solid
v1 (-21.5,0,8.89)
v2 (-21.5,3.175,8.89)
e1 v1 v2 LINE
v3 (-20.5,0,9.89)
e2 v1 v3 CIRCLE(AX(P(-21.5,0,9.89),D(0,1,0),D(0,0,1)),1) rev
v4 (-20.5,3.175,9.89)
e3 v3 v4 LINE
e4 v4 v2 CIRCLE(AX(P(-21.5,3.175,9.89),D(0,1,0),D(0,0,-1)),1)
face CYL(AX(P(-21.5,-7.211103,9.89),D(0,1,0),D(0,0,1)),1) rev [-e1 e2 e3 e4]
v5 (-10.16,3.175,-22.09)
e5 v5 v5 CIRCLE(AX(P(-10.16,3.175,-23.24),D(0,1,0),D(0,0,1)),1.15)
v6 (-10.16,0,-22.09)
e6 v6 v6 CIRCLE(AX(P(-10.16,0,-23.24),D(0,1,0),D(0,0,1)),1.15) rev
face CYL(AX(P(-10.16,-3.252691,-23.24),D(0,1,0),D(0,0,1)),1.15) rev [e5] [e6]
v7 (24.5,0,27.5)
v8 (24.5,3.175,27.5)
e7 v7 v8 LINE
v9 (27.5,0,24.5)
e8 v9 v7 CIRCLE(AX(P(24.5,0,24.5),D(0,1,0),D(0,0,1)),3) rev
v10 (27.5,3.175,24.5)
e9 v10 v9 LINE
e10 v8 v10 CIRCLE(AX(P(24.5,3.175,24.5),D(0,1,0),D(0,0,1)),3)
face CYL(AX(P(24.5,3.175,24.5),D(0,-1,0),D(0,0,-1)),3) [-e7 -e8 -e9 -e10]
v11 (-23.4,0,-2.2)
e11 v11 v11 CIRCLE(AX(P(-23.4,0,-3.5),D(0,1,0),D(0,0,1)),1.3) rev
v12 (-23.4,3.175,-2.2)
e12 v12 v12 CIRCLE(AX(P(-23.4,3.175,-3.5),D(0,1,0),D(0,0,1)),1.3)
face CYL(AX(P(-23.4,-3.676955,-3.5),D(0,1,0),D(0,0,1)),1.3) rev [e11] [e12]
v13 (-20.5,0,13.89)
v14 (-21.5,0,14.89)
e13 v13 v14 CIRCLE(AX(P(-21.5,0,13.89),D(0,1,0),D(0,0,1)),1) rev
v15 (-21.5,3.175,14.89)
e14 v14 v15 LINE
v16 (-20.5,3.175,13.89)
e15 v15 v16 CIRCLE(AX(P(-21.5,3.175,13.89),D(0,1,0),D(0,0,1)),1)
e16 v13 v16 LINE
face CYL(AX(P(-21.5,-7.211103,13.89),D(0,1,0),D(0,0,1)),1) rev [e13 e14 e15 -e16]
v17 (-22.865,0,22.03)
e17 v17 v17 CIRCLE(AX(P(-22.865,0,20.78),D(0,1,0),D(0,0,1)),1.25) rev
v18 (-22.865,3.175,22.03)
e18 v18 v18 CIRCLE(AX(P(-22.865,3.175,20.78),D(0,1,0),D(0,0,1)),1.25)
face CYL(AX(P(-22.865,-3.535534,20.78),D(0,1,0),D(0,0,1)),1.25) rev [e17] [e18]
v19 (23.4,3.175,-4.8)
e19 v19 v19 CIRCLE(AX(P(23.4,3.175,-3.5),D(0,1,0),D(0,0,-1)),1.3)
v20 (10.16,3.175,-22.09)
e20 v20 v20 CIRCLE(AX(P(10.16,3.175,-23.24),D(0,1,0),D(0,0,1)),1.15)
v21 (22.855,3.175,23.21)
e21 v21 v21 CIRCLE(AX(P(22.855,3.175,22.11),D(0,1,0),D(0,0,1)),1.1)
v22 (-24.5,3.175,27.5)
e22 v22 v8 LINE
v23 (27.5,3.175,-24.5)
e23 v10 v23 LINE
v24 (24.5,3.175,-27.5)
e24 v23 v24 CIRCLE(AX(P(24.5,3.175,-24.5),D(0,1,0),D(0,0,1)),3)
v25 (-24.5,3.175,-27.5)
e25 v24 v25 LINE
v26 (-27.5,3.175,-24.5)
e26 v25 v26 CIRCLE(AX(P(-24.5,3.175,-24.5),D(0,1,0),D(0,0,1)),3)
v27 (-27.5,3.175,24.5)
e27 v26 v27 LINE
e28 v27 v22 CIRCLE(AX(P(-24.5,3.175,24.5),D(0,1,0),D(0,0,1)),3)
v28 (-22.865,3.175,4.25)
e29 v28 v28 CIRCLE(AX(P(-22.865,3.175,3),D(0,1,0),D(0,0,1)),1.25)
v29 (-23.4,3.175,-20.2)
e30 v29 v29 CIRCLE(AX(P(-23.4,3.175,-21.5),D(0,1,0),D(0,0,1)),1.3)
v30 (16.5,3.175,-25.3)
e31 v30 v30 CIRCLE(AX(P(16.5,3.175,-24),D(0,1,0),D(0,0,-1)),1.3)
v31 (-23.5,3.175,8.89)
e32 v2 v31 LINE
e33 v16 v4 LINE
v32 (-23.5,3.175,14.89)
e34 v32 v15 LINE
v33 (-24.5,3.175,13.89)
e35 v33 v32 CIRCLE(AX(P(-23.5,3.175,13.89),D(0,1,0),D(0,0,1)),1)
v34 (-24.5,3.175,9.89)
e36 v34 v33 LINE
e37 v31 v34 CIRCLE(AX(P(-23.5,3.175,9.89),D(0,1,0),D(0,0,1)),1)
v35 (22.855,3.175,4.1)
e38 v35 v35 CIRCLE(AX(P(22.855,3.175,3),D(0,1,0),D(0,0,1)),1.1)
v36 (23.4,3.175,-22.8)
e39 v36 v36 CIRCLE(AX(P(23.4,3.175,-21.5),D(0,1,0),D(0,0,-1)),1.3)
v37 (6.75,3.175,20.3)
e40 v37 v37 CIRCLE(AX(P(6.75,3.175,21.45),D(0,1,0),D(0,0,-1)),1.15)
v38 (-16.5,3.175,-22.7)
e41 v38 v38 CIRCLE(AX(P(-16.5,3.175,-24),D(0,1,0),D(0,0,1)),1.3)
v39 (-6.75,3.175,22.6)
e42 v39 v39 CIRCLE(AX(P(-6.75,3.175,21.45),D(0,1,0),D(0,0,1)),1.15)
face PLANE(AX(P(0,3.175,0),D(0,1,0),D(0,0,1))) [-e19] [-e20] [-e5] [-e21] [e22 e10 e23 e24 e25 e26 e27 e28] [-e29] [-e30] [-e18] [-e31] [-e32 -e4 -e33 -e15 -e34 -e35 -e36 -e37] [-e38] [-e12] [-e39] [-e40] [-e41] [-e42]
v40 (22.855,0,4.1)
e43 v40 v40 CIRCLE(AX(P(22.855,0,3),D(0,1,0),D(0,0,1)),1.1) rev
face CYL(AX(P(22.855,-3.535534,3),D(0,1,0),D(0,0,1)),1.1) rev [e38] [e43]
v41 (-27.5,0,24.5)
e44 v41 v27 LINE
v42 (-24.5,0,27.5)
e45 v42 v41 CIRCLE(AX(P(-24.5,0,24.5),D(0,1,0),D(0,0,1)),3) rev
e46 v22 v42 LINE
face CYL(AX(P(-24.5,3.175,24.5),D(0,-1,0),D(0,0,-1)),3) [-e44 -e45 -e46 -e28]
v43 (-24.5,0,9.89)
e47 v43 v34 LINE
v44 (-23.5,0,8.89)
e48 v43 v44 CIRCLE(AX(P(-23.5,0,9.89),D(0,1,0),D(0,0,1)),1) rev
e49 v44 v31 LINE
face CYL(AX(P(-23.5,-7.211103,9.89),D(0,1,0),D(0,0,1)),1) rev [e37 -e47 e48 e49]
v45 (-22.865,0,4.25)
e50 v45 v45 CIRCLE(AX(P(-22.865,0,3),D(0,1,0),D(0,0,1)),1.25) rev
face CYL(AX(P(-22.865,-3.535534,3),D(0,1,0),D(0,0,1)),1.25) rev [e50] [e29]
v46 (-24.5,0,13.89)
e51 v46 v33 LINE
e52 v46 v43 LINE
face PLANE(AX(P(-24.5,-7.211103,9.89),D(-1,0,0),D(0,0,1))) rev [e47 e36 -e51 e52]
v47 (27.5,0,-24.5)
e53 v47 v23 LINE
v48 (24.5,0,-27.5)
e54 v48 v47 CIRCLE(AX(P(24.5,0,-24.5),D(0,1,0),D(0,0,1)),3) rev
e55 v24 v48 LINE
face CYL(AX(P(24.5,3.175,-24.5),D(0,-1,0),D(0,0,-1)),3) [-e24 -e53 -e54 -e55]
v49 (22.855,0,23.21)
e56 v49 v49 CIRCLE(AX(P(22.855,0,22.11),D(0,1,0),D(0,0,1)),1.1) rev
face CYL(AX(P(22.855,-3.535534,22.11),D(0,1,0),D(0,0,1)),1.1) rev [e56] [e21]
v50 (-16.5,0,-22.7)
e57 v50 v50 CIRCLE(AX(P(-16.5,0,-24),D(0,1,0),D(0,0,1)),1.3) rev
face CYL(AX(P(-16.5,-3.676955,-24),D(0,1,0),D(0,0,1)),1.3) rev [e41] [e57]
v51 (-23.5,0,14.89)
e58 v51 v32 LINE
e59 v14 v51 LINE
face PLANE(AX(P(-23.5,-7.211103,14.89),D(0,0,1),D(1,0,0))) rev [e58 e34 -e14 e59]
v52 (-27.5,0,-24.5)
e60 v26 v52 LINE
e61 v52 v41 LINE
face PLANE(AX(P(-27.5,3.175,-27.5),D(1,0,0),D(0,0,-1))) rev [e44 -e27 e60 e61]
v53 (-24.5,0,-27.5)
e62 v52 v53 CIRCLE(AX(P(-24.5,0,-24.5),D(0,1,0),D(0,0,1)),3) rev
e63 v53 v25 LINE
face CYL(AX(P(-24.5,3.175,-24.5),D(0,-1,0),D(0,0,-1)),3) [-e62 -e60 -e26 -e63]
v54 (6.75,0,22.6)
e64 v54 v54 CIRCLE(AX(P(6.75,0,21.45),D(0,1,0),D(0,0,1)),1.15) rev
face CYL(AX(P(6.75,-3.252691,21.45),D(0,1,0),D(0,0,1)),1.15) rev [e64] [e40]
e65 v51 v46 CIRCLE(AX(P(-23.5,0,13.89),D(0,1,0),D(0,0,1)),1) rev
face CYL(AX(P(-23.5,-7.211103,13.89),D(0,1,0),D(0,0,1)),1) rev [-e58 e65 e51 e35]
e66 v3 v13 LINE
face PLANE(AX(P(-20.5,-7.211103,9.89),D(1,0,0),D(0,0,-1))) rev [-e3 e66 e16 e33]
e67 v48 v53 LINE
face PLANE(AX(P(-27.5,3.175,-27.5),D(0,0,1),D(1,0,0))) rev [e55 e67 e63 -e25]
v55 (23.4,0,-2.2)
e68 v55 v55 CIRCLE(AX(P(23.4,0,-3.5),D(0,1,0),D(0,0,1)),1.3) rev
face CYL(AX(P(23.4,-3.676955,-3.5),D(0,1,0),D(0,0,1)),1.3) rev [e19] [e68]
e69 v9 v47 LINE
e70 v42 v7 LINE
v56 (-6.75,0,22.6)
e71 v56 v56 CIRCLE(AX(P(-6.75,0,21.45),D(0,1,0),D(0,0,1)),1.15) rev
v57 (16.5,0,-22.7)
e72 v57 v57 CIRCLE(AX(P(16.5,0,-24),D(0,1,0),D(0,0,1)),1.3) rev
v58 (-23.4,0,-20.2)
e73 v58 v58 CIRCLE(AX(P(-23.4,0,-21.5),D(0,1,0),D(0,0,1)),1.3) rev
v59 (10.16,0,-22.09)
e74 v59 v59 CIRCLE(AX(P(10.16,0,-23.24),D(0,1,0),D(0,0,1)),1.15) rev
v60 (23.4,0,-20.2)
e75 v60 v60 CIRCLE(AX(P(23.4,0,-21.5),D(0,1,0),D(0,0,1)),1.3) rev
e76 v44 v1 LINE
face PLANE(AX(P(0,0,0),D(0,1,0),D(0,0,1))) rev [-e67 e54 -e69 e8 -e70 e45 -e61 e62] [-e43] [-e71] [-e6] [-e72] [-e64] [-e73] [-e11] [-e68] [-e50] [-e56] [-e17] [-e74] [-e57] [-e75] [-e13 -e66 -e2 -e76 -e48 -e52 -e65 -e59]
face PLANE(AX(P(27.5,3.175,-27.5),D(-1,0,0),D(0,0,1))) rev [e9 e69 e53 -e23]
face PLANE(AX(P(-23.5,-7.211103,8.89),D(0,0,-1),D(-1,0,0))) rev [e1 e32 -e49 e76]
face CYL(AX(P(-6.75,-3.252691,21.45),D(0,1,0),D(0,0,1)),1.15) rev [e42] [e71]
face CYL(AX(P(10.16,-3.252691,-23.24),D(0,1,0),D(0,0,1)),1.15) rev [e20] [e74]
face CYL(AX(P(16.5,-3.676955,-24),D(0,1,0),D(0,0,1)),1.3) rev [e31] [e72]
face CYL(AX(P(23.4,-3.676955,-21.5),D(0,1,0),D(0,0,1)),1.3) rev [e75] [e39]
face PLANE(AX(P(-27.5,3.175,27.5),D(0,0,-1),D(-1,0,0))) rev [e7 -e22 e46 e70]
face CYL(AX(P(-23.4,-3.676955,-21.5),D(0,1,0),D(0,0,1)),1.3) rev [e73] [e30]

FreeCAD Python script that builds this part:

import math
import FreeCAD as App
import Part
import Sketcher


def edges_at(feature, points):
    """Names of the edges that pass closest to the given points."""
    edges = feature.Shape.Edges
    near = lambda p: min(range(len(edges)), key=lambda i: edges[i].distToShape(Part.Vertex(*p))[0])
    return sorted({f"Edge{near(p) + 1}" for p in points})

doc = App.newDocument("Part")
body = doc.addObject("PartDesign::Body", "Body")

sketch1 = body.newObject("Sketcher::SketchObject", "Sketch")
sketch1.AttachmentSupport = (doc.getObject("XZ_Plane"), [""])
sketch1.MapMode = "FlatFace"
sketch1.addGeometry([
    Part.LineSegment(App.Vector(-28, -28, 0), App.Vector(-28, 28, 0)),
    Part.LineSegment(App.Vector(-28, 28, 0), App.Vector(28, 28, 0)),
    Part.LineSegment(App.Vector(28, 28, 0), App.Vector(28, -28, 0)),
    Part.LineSegment(App.Vector(28, -28, 0), App.Vector(-28, -28, 0)),
], False)
sketch1.addConstraint([
    Sketcher.Constraint("Coincident", 0, 2, 1, 1),
    Sketcher.Constraint("Coincident", 1, 2, 2, 1),
    Sketcher.Constraint("Coincident", 2, 2, 3, 1),
    Sketcher.Constraint("Coincident", 3, 2, 0, 1),
    Sketcher.Constraint("Vertical", 0),
    Sketcher.Constraint("Horizontal", 1),
    Sketcher.Constraint("Vertical", 2),
    Sketcher.Constraint("Horizontal", 3),
    Sketcher.Constraint("Symmetric", 0, 2, 2, 2, -1, 1),
    Sketcher.Constraint("Equal", 3, 0),
    Sketcher.Constraint("DistanceX", 1, 1, 1, 2, 55.0),
])
pad1 = body.newObject("PartDesign::Pad", "Pad")
pad1.Profile = sketch1
pad1.Length = 3.175
pad1.Reversed = True

sketch2 = body.newObject("Sketcher::SketchObject", "Sketch001")
sketch2.AttachmentSupport = (doc.getObject("XZ_Plane"), [""])
sketch2.MapMode = "FlatFace"
sketch2.AttachmentOffset = App.Placement(App.Vector(0, 0, -3.175), App.Rotation())
sketch2.addGeometry([
    Part.Circle(App.Vector(-23.4, -21.5, 0), App.Vector(0, 0, 1), 1.3),
    Part.Circle(App.Vector(-23.4, -3.5, 0), App.Vector(0, 0, 1), 1.3),
    Part.Circle(App.Vector(23.4, -3.5, 0), App.Vector(0, 0, 1), 1.3),
    Part.Circle(App.Vector(23.4, -21.5, 0), App.Vector(0, 0, 1), 1.3),
], False)
sketch2.addConstraint([
    Sketcher.Constraint("Equal", 0, 1),
    Sketcher.Constraint("Equal", 1, 2),
    Sketcher.Constraint("Equal", 2, 3),
    Sketcher.Constraint("Symmetric", 1, 3, 2, 3, -2),
    Sketcher.Constraint("Symmetric", 0, 3, 3, 3, -2),
    Sketcher.Constraint("Vertical", 0, 3, 1, 3),
    Sketcher.Constraint("Diameter", 0, 2.6),
    Sketcher.Constraint("DistanceY", 0, 3, 1, 3, 18.0),
    Sketcher.Constraint("DistanceX", 0, 3, -1, 1, 23.4),
    Sketcher.Constraint("DistanceY", 0, 3, -1, 1, 21.5),
])
pocket1 = body.newObject("PartDesign::Pocket", "Pocket")
pocket1.Profile = sketch2
pocket1.Length = 3.175
pocket1.Reversed = True
doc.recompute()

fillet = body.newObject("PartDesign::Fillet", "Fillet")
fillet.Base = (pocket1, edges_at(pocket1, [
    (27.5, 1.587, 27.5),
    (-27.5, 1.587, 27.5),
    (-27.5, 1.587, -27.5),
    (27.5, 1.587, -27.5),
]))
fillet.Radius = 3

sketch3 = body.newObject("Sketcher::SketchObject", "Sketch002")
sketch3.AttachmentSupport = (doc.getObject("XZ_Plane"), [""])
sketch3.MapMode = "FlatFace"
sketch3.AttachmentOffset = App.Placement(App.Vector(0, 0, -3.175), App.Rotation())
sketch3.addGeometry([
    Part.Circle(App.Vector(-22.9, 3, 0), App.Vector(0, 0, 1), 1.2),
    Part.Circle(App.Vector(22.9, 3, 0), App.Vector(0, 0, 1), 1.1),
    Part.Circle(App.Vector(22.9, 22.1, 0), App.Vector(0, 0, 1), 1.1),
    Part.Circle(App.Vector(-22.9, 20.8, 0), App.Vector(0, 0, 1), 1.2),
], False)
sketch3.addConstraint([
    Sketcher.Constraint("Equal", 1, 2),
    Sketcher.Constraint("Equal", 0, 3),
    Sketcher.Constraint("Horizontal", 0, 3, 1, 3),
    Sketcher.Constraint("Vertical", 1, 3, 2, 3),
    Sketcher.Constraint("Vertical", 0, 3, 3, 3),
    Sketcher.Constraint("Diameter", 0, 2.5),
    Sketcher.Constraint("Diameter", 1, 2.2),
    Sketcher.Constraint("DistanceY", -1, 1, 0, 3, 3.0),
    Sketcher.Constraint("DistanceY", -1, 1, 2, 3, 22.11),
    Sketcher.Constraint("DistanceY", -1, 1, 3, 3, 20.78),
    Sketcher.Constraint("DistanceX", 0, 3, 1, 3, 45.72),
    Sketcher.Constraint("DistanceX", 0, 3, -1, 1, 22.865),
])
pocket2 = body.newObject("PartDesign::Pocket", "Pocket001")
pocket2.Profile = sketch3
pocket2.Length = 3.175
pocket2.Reversed = True

sketch4 = body.newObject("Sketcher::SketchObject", "Sketch003")
sketch4.AttachmentSupport = (doc.getObject("XZ_Plane"), [""])
sketch4.MapMode = "FlatFace"
sketch4.AttachmentOffset = App.Placement(App.Vector(0, 0, -3.175), App.Rotation())
sketch4.addGeometry([
    Part.Circle(App.Vector(-10.2, -23.2, 0), App.Vector(0, 0, 1), 1.1),
    Part.Circle(App.Vector(10.2, -23.2, 0), App.Vector(0, 0, 1), 1.1),
], False)
sketch4.addConstraint([
    Sketcher.Constraint("Equal", 0, 1),
    Sketcher.Constraint("Symmetric", 0, 3, 1, 3, -2),
    Sketcher.Constraint("Diameter", 0, 2.3),
    Sketcher.Constraint("DistanceX", 0, 3, -1, 1, 10.16),
    Sketcher.Constraint("DistanceY", 0, 3, -1, 1, 23.24),
])
pocket3 = body.newObject("PartDesign::Pocket", "Pocket002")
pocket3.Profile = sketch4
pocket3.Length = 3.175
pocket3.Reversed = True

sketch5 = body.newObject("Sketcher::SketchObject", "Sketch004")
sketch5.AttachmentSupport = (doc.getObject("XZ_Plane"), [""])
sketch5.MapMode = "FlatFace"
sketch5.AttachmentOffset = App.Placement(App.Vector(0, 0, -3.175), App.Rotation())
sketch5.addGeometry([
    Part.Circle(App.Vector(-6.8, 21.4, 0), App.Vector(0, 0, 1), 1.1),
    Part.Circle(App.Vector(6.8, 21.4, 0), App.Vector(0, 0, 1), 1.1),
], False)
sketch5.addConstraint([
    Sketcher.Constraint("Equal", 0, 1),
    Sketcher.Constraint("Symmetric", 0, 3, 1, 3, -2),
    Sketcher.Constraint("Diameter", 0, 2.3),
    Sketcher.Constraint("DistanceX", 0, 3, 1, 3, 13.5),
    Sketcher.Constraint("DistanceY", -1, 1, 0, 3, 21.45),
])
pocket4 = body.newObject("PartDesign::Pocket", "Pocket003")
pocket4.Profile = sketch5
pocket4.Length = 3.175
pocket4.Reversed = True

sketch6 = body.newObject("Sketcher::SketchObject", "Sketch005")
sketch6.AttachmentSupport = (doc.getObject("XZ_Plane"), [""])
sketch6.MapMode = "FlatFace"
sketch6.AttachmentOffset = App.Placement(App.Vector(0, 0, -3.175), App.Rotation())
sketch6.addGeometry([
    Part.Circle(App.Vector(-16.5, -24, 0), App.Vector(0, 0, 1), 1.3),
    Part.Circle(App.Vector(16.5, -24, 0), App.Vector(0, 0, 1), 1.3),
], False)
sketch6.addConstraint([
    Sketcher.Constraint("Equal", 0, 1),
    Sketcher.Constraint("Symmetric", 0, 3, 1, 3, -2),
    Sketcher.Constraint("Diameter", 0, 2.6),
    Sketcher.Constraint("DistanceY", 0, 3, -1, 1, 24.0),
    Sketcher.Constraint("DistanceX", 0, 3, 1, 3, 33.0),
])
pocket5 = body.newObject("PartDesign::Pocket", "Pocket004")
pocket5.Profile = sketch6
pocket5.Length = 3.175
pocket5.Reversed = True

sketch7 = body.newObject("Sketcher::SketchObject", "Sketch006")
sketch7.AttachmentSupport = (doc.getObject("XZ_Plane"), [""])
sketch7.MapMode = "FlatFace"
sketch7.AttachmentOffset = App.Placement(App.Vector(0, 0, -3.175), App.Rotation())
sketch7.addGeometry([
    Part.LineSegment(App.Vector(-21.5, 8.9, 0), App.Vector(-23.5, 8.9, 0)),
    Part.ArcOfCircle(Part.Circle(App.Vector(-23.5, 9.9, 0), App.Vector(0, 0, 1), 1), math.radians(-180), math.radians(-90)),
    Part.LineSegment(App.Vector(-24.5, 9.9, 0), App.Vector(-24.5, 13.9, 0)),
    Part.ArcOfCircle(Part.Circle(App.Vector(-23.5, 13.9, 0), App.Vector(0, 0, 1), 1), math.radians(90), math.radians(180)),
    Part.LineSegment(App.Vector(-23.5, 14.9, 0), App.Vector(-21.5, 14.9, 0)),
    Part.ArcOfCircle(Part.Circle(App.Vector(-21.5, 13.9, 0), App.Vector(0, 0, 1), 1), math.radians(0), math.radians(90)),
    Part.LineSegment(App.Vector(-20.5, 13.9, 0), App.Vector(-20.5, 9.9, 0)),
    Part.ArcOfCircle(Part.Circle(App.Vector(-21.5, 9.9, 0), App.Vector(0, 0, 1), 1), math.radians(-90), math.radians(0)),
], False)
sketch7.addConstraint([
    Sketcher.Constraint("Tangent", 0, 2, 1, 2),
    Sketcher.Constraint("Tangent", 1, 1, 2, 1),
    Sketcher.Constraint("Tangent", 2, 2, 3, 2),
    Sketcher.Constraint("Tangent", 3, 1, 4, 1),
    Sketcher.Constraint("Tangent", 4, 2, 5, 2),
    Sketcher.Constraint("Tangent", 5, 1, 6, 1),
    Sketcher.Constraint("Tangent", 6, 2, 7, 2),
    Sketcher.Constraint("Tangent", 7, 1, 0, 1),
    Sketcher.Constraint("Horizontal", 0),
    Sketcher.Constraint("Vertical", 2),
    Sketcher.Constraint("Horizontal", 4),
    Sketcher.Constraint("Vertical", 6),
    Sketcher.Constraint("Equal", 1, 3),
    Sketcher.Constraint("Equal", 3, 5),
    Sketcher.Constraint("Equal", 5, 7),
    Sketcher.Constraint("Radius", 1, 1.0),
    Sketcher.Constraint("DistanceX", 0, 2, 0, 1, 2.0),
    Sketcher.Constraint("DistanceY", 2, 1, 2, 2, 4.0),
    Sketcher.Constraint("DistanceX", 1, 3, -1, 1, 23.5),
    Sketcher.Constraint("DistanceY", -1, 1, 1, 3, 9.89),
])
pocket6 = body.newObject("PartDesign::Pocket", "Pocket005")
pocket6.Profile = sketch7
pocket6.Length = 3.175
pocket6.Reversed = True

doc.recompute()
